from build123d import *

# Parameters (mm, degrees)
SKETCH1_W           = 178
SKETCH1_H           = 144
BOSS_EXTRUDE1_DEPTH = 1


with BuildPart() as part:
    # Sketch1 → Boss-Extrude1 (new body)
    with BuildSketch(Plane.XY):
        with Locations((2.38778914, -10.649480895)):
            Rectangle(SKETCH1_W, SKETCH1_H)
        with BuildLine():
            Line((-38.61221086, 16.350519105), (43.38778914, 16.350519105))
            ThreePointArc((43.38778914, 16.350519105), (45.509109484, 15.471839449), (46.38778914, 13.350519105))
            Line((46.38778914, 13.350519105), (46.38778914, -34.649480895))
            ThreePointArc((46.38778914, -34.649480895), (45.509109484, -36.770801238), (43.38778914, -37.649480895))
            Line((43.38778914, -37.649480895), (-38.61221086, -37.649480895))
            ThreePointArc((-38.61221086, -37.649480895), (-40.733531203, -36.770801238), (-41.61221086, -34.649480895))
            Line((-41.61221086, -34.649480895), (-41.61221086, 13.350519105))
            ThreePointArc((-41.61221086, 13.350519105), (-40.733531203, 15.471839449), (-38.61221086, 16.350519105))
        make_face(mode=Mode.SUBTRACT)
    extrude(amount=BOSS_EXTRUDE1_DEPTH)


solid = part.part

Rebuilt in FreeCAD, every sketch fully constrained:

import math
import FreeCAD as App
import Part
import Sketcher
from FreeCAD import Vector

doc = App.newDocument("Part")
params = doc.addObject("Spreadsheet::Sheet", "Params")
for row, (alias, value) in enumerate([
    ("sketch1_radius", "3 mm"),
    ("sketch1_width", "178 mm"),
    ("sketch1_width2", "82 mm"),
    ("sketch1_height", "144 mm"),
    ("sketch1_height2", "48 mm"),
    ("pad1_length", "1 mm"),
], start=1):
    params.set(f"A{row}", alias)
    params.set(f"B{row}", "=" + value)
    params.setAlias(f"B{row}", alias)

body = doc.addObject("PartDesign::Body", "Body")

# Sketch on XY plane
sketch1 = body.newObject("Sketcher::SketchObject", "Sketch")
sketch1.AttachmentSupport = (doc.getObject("XY_Plane"), [""])
sketch1.MapMode = "FlatFace"
sketch1.addGeometry([
    Part.LineSegment(Vector(-86.6, 61.4, 0), Vector(-86.6, -82.6, 0)),  # 0
    Part.LineSegment(Vector(-86.6, -82.6, 0), Vector(91.4, -82.6, 0)),  # 1
    Part.LineSegment(Vector(91.4, -82.6, 0), Vector(91.4, 61.4, 0)),  # 2
    Part.LineSegment(Vector(91.4, 61.4, 0), Vector(-86.6, 61.4, 0)),  # 3
    Part.ArcOfCircle(Part.Circle(Vector(-38.6, 13.4, 0), Vector(0, 0, 1), 3), math.radians(90), math.radians(180)),  # 4
    Part.LineSegment(Vector(-38.6, 16.4, 0), Vector(43.4, 16.4, 0)),  # 5
    Part.ArcOfCircle(Part.Circle(Vector(43.4, 13.4, 0), Vector(0, 0, 1), 3), math.radians(0), math.radians(90)),  # 6
    Part.LineSegment(Vector(46.4, 13.4, 0), Vector(46.4, -34.6, 0)),  # 7
    Part.ArcOfCircle(Part.Circle(Vector(43.4, -34.6, 0), Vector(0, 0, 1), 3), math.radians(-90), math.radians(0)),  # 8
    Part.LineSegment(Vector(43.4, -37.6, 0), Vector(-38.6, -37.6, 0)),  # 9
    Part.ArcOfCircle(Part.Circle(Vector(-38.6, -34.6, 0), Vector(0, 0, 1), 3), math.radians(-180), math.radians(-90)),  # 10
    Part.LineSegment(Vector(-41.6, -34.6, 0), Vector(-41.6, 13.4, 0)),  # 11
], False)
sketch1.addConstraint([
    Sketcher.Constraint("Coincident", 0, 2, 1, 1),
    Sketcher.Constraint("Coincident", 1, 2, 2, 1),
    Sketcher.Constraint("Coincident", 2, 2, 3, 1),
    Sketcher.Constraint("Coincident", 3, 2, 0, 1),
    Sketcher.Constraint("Tangent", 4, 1, 5, 1),
    Sketcher.Constraint("Tangent", 5, 2, 6, 2),
    Sketcher.Constraint("Tangent", 6, 1, 7, 1),
    Sketcher.Constraint("Tangent", 7, 2, 8, 2),
    Sketcher.Constraint("Tangent", 8, 1, 9, 1),
    Sketcher.Constraint("Tangent", 9, 2, 10, 2),
    Sketcher.Constraint("Tangent", 10, 1, 11, 1),
    Sketcher.Constraint("Tangent", 11, 2, 4, 2),
    Sketcher.Constraint("Vertical", 0),
    Sketcher.Constraint("Horizontal", 1),
    Sketcher.Constraint("Vertical", 2),
    Sketcher.Constraint("Horizontal", 3),
    Sketcher.Constraint("Horizontal", 5),
    Sketcher.Constraint("Vertical", 7),
    Sketcher.Constraint("Horizontal", 9),
    Sketcher.Constraint("Vertical", 11),
    Sketcher.Constraint("Equal", 4, 6),
    Sketcher.Constraint("Equal", 6, 8),
    Sketcher.Constraint("Equal", 8, 10),
    Sketcher.Constraint("Radius", 4, 3.0),
    Sketcher.Constraint("DistanceX", 1, 1, 1, 2, 178.0),
    Sketcher.Constraint("DistanceX", 5, 1, 5, 2, 82.0),
    Sketcher.Constraint("DistanceY", 0, 2, 0, 1, 144.0),
    Sketcher.Constraint("DistanceY", 7, 2, 7, 1, 48.0),
    Sketcher.Constraint("DistanceX", 0, 2, 10, 3, 48.0),
    Sketcher.Constraint("DistanceY", 0, 2, 10, 3, 48.0),
    Sketcher.Constraint("DistanceX", 4, 3, -1, 1, 38.612211),
    Sketcher.Constraint("DistanceY", -1, 1, 4, 3, 13.350519),
])
sketch1.setExpression("Constraints[23]", "Params.sketch1_radius")
sketch1.setExpression("Constraints[24]", "Params.sketch1_width")
sketch1.setExpression("Constraints[25]", "Params.sketch1_width2")
sketch1.setExpression("Constraints[26]", "Params.sketch1_height")
sketch1.setExpression("Constraints[27]", "Params.sketch1_height2")
pad1 = body.newObject("PartDesign::Pad", "Pad")
pad1.Profile = sketch1
pad1.setExpression("Length", "Params.pad1_length")

doc.recompute()
